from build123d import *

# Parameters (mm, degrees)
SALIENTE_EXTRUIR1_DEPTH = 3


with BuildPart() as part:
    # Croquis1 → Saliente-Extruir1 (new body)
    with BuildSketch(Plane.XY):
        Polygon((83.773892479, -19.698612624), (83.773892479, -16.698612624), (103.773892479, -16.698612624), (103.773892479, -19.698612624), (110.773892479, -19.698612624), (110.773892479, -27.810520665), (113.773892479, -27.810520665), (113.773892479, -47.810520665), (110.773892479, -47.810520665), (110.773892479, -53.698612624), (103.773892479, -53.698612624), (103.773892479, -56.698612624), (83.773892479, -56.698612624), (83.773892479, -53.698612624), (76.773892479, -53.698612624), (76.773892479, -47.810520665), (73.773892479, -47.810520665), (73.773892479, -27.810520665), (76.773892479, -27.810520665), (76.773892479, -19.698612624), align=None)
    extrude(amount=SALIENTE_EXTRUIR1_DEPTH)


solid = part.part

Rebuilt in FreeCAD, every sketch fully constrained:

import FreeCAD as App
import Part
import Sketcher

doc = App.newDocument("Part")
body = doc.addObject("PartDesign::Body", "Body")

# Sketch on XY plane
sketch1 = body.newObject("Sketcher::SketchObject", "Sketch")
sketch1.AttachmentSupport = (doc.getObject("XY_Plane"), [""])
sketch1.MapMode = "FlatFace"
sketch1.addGeometry([
    Part.LineSegment(App.Vector(83.8, -16.7, 0), App.Vector(83.8, -19.7, 0)),  # 0
    Part.LineSegment(App.Vector(83.8, -19.7, 0), App.Vector(76.8, -19.7, 0)),  # 1
    Part.LineSegment(App.Vector(76.8, -19.7, 0), App.Vector(76.8, -27.8, 0)),  # 2
    Part.LineSegment(App.Vector(76.8, -27.8, 0), App.Vector(73.8, -27.8, 0)),  # 3
    Part.LineSegment(App.Vector(73.8, -27.8, 0), App.Vector(73.8, -47.8, 0)),  # 4
    Part.LineSegment(App.Vector(73.8, -47.8, 0), App.Vector(76.8, -47.8, 0)),  # 5
    Part.LineSegment(App.Vector(76.8, -47.8, 0), App.Vector(76.8, -53.7, 0)),  # 6
    Part.LineSegment(App.Vector(76.8, -53.7, 0), App.Vector(83.8, -53.7, 0)),  # 7
    Part.LineSegment(App.Vector(83.8, -53.7, 0), App.Vector(83.8, -56.7, 0)),  # 8
    Part.LineSegment(App.Vector(83.8, -56.7, 0), App.Vector(103.8, -56.7, 0)),  # 9
    Part.LineSegment(App.Vector(103.8, -56.7, 0), App.Vector(103.8, -53.7, 0)),  # 10
    Part.LineSegment(App.Vector(103.8, -53.7, 0), App.Vector(110.8, -53.7, 0)),  # 11
    Part.LineSegment(App.Vector(110.8, -53.7, 0), App.Vector(110.8, -47.8, 0)),  # 12
    Part.LineSegment(App.Vector(110.8, -47.8, 0), App.Vector(113.8, -47.8, 0)),  # 13
    Part.LineSegment(App.Vector(113.8, -47.8, 0), App.Vector(113.8, -27.8, 0)),  # 14
    Part.LineSegment(App.Vector(113.8, -27.8, 0), App.Vector(110.8, -27.8, 0)),  # 15
    Part.LineSegment(App.Vector(110.8, -27.8, 0), App.Vector(110.8, -19.7, 0)),  # 16
    Part.LineSegment(App.Vector(110.8, -19.7, 0), App.Vector(103.8, -19.7, 0)),  # 17
    Part.LineSegment(App.Vector(103.8, -19.7, 0), App.Vector(103.8, -16.7, 0)),  # 18
    Part.LineSegment(App.Vector(103.8, -16.7, 0), App.Vector(83.8, -16.7, 0)),  # 19
], False)
sketch1.addConstraint([
    Sketcher.Constraint("Coincident", 0, 2, 1, 1),
    Sketcher.Constraint("Coincident", 1, 2, 2, 1),
    Sketcher.Constraint("Coincident", 2, 2, 3, 1),
    Sketcher.Constraint("Coincident", 3, 2, 4, 1),
    Sketcher.Constraint("Coincident", 4, 2, 5, 1),
    Sketcher.Constraint("Coincident", 5, 2, 6, 1),
    Sketcher.Constraint("Coincident", 6, 2, 7, 1),
    Sketcher.Constraint("Coincident", 7, 2, 8, 1),
    Sketcher.Constraint("Coincident", 8, 2, 9, 1),
    Sketcher.Constraint("Coincident", 9, 2, 10, 1),
    Sketcher.Constraint("Coincident", 10, 2, 11, 1),
    Sketcher.Constraint("Coincident", 11, 2, 12, 1),
    Sketcher.Constraint("Coincident", 12, 2, 13, 1),
    Sketcher.Constraint("Coincident", 13, 2, 14, 1),
    Sketcher.Constraint("Coincident", 14, 2, 15, 1),
    Sketcher.Constraint("Coincident", 15, 2, 16, 1),
    Sketcher.Constraint("Coincident", 16, 2, 17, 1),
    Sketcher.Constraint("Coincident", 17, 2, 18, 1),
    Sketcher.Constraint("Coincident", 18, 2, 19, 1),
    Sketcher.Constraint("Coincident", 19, 2, 0, 1),
    Sketcher.Constraint("Vertical", 0),
    Sketcher.Constraint("Horizontal", 1),
    Sketcher.Constraint("Vertical", 2),
    Sketcher.Constraint("Horizontal", 3),
    Sketcher.Constraint("Vertical", 4),
    Sketcher.Constraint("Horizontal", 5),
    Sketcher.Constraint("Vertical", 6),
    Sketcher.Constraint("Horizontal", 7),
    Sketcher.Constraint("Vertical", 8),
    Sketcher.Constraint("Horizontal", 9),
    Sketcher.Constraint("Vertical", 10),
    Sketcher.Constraint("Horizontal", 11),
    Sketcher.Constraint("Vertical", 12),
    Sketcher.Constraint("Horizontal", 13),
    Sketcher.Constraint("Vertical", 14),
    Sketcher.Constraint("Horizontal", 15),
    Sketcher.Constraint("Vertical", 16),
    Sketcher.Constraint("Horizontal", 17),
    Sketcher.Constraint("Vertical", 18),
    Sketcher.Constraint("Horizontal", 19),
    Sketcher.Constraint("Horizontal", 7, 2, 10, 2),
    Sketcher.Constraint("Horizontal", 5, 2, 12, 2),
    Sketcher.Constraint("Horizontal", 3, 2, 14, 2),
    Sketcher.Constraint("Horizontal", 1, 2, 16, 2),
    Sketcher.Constraint("Vertical", 2, 2, 5, 2),
    Sketcher.Constraint("Vertical", 0, 2, 7, 2),
    Sketcher.Constraint("Vertical", 12, 2, 15, 2),
    Sketcher.Constraint("Vertical", 10, 2, 17, 2),
    Sketcher.Constraint("Equal", 7, 11),
    Sketcher.Constraint("Equal", 5, 13),
    Sketcher.Constraint("Equal", 15, 0),
    Sketcher.Constraint("Equal", 19, 4),
    Sketcher.Constraint("Equal", 0, 8),
    Sketcher.Constraint("DistanceX", 1, 2, 1, 1, 7.0),
    Sketcher.Constraint("DistanceX", 3, 2, 3, 1, 3.0),
    Sketcher.Constraint("DistanceX", 9, 1, 9, 2, 20.0),
    Sketcher.Constraint("DistanceY", 6, 2, 1, 2, 34.0),
    Sketcher.Constraint("DistanceY", 2, 2, 2, 1, 8.111908),
    Sketcher.Constraint("DistanceY", 2, 2, -1, 1, 27.810521),
    Sketcher.Constraint("DistanceX", -1, 1, 0, 2, 83.773892),
])
pad1 = body.newObject("PartDesign::Pad", "Pad")
pad1.Profile = sketch1
pad1.Length = 3

doc.recompute()
